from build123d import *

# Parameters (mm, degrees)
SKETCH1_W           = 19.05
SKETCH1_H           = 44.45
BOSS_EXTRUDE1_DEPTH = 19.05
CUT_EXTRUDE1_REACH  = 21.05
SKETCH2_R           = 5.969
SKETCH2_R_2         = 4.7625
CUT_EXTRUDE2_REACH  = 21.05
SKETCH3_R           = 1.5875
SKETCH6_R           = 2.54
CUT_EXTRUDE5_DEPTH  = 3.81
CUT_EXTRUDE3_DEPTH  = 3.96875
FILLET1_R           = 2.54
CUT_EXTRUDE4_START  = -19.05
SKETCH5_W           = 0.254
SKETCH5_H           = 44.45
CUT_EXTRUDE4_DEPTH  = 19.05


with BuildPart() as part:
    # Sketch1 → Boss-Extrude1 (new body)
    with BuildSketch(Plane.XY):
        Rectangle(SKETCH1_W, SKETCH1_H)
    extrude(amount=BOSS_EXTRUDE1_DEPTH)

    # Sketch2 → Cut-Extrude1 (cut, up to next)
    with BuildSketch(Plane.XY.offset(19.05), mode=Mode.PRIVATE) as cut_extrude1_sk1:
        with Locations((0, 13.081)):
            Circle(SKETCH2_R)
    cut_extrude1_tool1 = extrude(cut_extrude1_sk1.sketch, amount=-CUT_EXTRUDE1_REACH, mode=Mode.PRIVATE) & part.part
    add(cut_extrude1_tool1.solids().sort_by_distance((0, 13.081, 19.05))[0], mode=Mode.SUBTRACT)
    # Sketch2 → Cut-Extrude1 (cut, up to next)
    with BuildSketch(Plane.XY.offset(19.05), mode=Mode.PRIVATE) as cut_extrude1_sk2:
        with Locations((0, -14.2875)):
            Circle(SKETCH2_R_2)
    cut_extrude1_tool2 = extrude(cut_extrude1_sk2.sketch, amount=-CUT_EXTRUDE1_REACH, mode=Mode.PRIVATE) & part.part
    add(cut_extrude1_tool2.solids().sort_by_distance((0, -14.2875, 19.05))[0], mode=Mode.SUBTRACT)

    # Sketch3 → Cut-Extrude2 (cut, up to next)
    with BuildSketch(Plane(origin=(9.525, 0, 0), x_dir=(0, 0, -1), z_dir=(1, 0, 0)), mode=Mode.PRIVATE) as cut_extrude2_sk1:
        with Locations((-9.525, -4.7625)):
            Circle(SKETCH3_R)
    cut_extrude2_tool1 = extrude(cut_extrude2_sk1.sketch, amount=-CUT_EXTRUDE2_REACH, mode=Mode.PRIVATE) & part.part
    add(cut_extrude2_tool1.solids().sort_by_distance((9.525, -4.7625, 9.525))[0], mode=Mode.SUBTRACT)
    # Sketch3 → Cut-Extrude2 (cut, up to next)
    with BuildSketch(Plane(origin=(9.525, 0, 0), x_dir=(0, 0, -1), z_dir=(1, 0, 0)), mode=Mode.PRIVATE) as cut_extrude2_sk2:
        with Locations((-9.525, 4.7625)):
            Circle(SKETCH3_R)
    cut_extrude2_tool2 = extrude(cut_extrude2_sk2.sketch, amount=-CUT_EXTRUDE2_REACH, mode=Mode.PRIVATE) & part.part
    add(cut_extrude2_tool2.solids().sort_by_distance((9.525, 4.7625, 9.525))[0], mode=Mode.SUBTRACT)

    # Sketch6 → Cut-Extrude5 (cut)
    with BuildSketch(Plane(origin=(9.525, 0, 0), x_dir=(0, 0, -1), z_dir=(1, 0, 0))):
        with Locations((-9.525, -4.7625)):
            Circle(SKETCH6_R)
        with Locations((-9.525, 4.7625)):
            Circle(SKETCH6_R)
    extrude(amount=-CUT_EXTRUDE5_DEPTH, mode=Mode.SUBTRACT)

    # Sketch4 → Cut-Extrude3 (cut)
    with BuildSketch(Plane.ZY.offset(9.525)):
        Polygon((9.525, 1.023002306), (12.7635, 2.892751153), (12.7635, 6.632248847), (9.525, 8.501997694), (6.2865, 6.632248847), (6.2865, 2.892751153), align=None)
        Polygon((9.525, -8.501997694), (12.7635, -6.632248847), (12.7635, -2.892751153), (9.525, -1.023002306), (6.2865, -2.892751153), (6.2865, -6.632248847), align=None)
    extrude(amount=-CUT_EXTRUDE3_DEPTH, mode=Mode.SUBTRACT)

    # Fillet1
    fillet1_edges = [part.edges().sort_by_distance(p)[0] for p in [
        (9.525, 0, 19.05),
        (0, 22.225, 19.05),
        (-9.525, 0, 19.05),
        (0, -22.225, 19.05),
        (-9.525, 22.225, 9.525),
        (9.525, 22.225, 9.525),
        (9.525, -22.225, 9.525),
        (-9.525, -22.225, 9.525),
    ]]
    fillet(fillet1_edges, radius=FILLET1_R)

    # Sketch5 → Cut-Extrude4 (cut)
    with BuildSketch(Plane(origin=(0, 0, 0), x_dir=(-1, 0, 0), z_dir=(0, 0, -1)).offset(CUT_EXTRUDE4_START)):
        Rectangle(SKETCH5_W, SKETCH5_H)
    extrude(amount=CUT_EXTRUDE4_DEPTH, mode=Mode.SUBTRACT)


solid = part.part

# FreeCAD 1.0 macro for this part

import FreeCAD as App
import Part
import Sketcher

V = App.Vector
Q = App.Units.Quantity


def edges_at(feature, points):
    """Names of the edges that pass closest to the given points."""
    edges = feature.Shape.Edges
    near = lambda p: min(range(len(edges)), key=lambda i: edges[i].distToShape(Part.Vertex(*p))[0])
    return sorted({f"Edge{near(p) + 1}" for p in points})


def add_polygon(sketch, points):
    """Adds a closed chain of lines whose ends are joined by coincident constraints."""
    first, n = sketch.GeometryCount, len(points)
    for a, b in zip(points, points[1:] + points[:1]):
        sketch.addGeometry(Part.LineSegment(App.Vector(*a, 0), App.Vector(*b, 0)), False)
    for i in range(n):
        sketch.addConstraint(Sketcher.Constraint("Coincident", first + i, 2, first + (i + 1) % n, 1))

doc = App.newDocument("Part")
body = doc.addObject("PartDesign::Body", "Body")
body.AllowCompound = True

sketch1 = body.newObject("Sketcher::SketchObject", "Sketch")
sketch1.AttachmentSupport = (doc.getObject("XY_Plane"), [""])
sketch1.MapMode = "FlatFace"
add_polygon(sketch1, [(-9.525, 22.225), (-9.525, -22.225), (9.525, -22.225), (9.525, 22.225)])
sketch1.addConstraint([
    Sketcher.Constraint("Vertical", 0),
    Sketcher.Constraint("Horizontal", 1),
    Sketcher.Constraint("Vertical", 2),
    Sketcher.Constraint("Horizontal", 3),
    Sketcher.Constraint("Symmetric", 0, 2, 2, 2, -1, 1),
    Sketcher.Constraint("DistanceX", 1, 1, 1, 2, Q("0.75 in")),
    Sketcher.Constraint("DistanceY", 0, 2, 0, 1, Q("1.75 in")),
])
pad1 = body.newObject("PartDesign::Pad", "Pad")
pad1.Profile = sketch1
pad1.Length = Q("0.75 in")

sketch2 = body.newObject("Sketcher::SketchObject", "Sketch001")
sketch2.AttachmentSupport = (doc.getObject("XY_Plane"), [""])
sketch2.MapMode = "FlatFace"
sketch2.AttachmentOffset = App.Placement(V(0, 0, 0.75 * 25.4), App.Rotation())
sketch2.addGeometry(Part.Circle(V(0, 13.081, 0), V(0, 0, 1), 5.969), False)
sketch2.addConstraint([
    Sketcher.Constraint("PointOnObject", 0, 3, -2),
    Sketcher.Constraint("Diameter", 0, Q("0.47 in")),
    Sketcher.Constraint("DistanceY", -1, 1, 0, 3, Q("0.515 in")),
])
pocket1 = body.newObject("PartDesign::Pocket", "Pocket")
pocket1.Profile = sketch2
pocket1.Type = "UpToFirst"

sketch3 = body.newObject("Sketcher::SketchObject", "Sketch002")
sketch3.AttachmentSupport = (doc.getObject("XY_Plane"), [""])
sketch3.MapMode = "FlatFace"
sketch3.AttachmentOffset = App.Placement(V(0, 0, 0.75 * 25.4), App.Rotation())
sketch3.addGeometry(Part.Circle(V(0, -14.2875, 0), V(0, 0, 1), 4.7625), False)
sketch3.addConstraint([
    Sketcher.Constraint("PointOnObject", 0, 3, -2),
    Sketcher.Constraint("Diameter", 0, Q("0.375 in")),
    Sketcher.Constraint("DistanceY", 0, 3, -1, 1, Q("0.5625 in")),
])
pocket2 = body.newObject("PartDesign::Pocket", "Pocket001")
pocket2.Profile = sketch3
pocket2.Type = "UpToFirst"

sketch4 = body.newObject("Sketcher::SketchObject", "Sketch003")
sketch4.AttachmentSupport = (doc.getObject("YZ_Plane"), [""])
sketch4.MapMode = "FlatFace"
sketch4.AttachmentOffset = App.Placement(V(0, 0, 0.375 * 25.4), App.Rotation())
sketch4.addGeometry(Part.Circle(V(-4.7625, 9.525, 0), V(0, 0, 1), 1.5875), False)
sketch4.addConstraint([
    Sketcher.Constraint("Diameter", 0, Q("0.125 in")),
    Sketcher.Constraint("DistanceX", 0, 3, -1, 1, Q("0.1875 in")),
    Sketcher.Constraint("DistanceY", -1, 1, 0, 3, Q("0.375 in")),
])
pocket3 = body.newObject("PartDesign::Pocket", "Pocket002")
pocket3.Profile = sketch4
pocket3.Type = "UpToFirst"

sketch5 = body.newObject("Sketcher::SketchObject", "Sketch004")
sketch5.AttachmentSupport = (doc.getObject("YZ_Plane"), [""])
sketch5.MapMode = "FlatFace"
sketch5.AttachmentOffset = App.Placement(V(0, 0, 0.375 * 25.4), App.Rotation())
sketch5.addGeometry(Part.Circle(V(4.7625, 9.525, 0), V(0, 0, 1), 1.5875), False)
sketch5.addConstraint([
    Sketcher.Constraint("Diameter", 0, Q("0.125 in")),
    Sketcher.Constraint("DistanceX", -1, 1, 0, 3, Q("0.1875 in")),
    Sketcher.Constraint("DistanceY", -1, 1, 0, 3, Q("0.375 in")),
])
pocket4 = body.newObject("PartDesign::Pocket", "Pocket003")
pocket4.Profile = sketch5
pocket4.Type = "UpToFirst"

sketch6 = body.newObject("Sketcher::SketchObject", "Sketch005")
sketch6.AttachmentSupport = (doc.getObject("YZ_Plane"), [""])
sketch6.MapMode = "FlatFace"
sketch6.AttachmentOffset = App.Placement(V(0, 0, 0.375 * 25.4), App.Rotation())
sketch6.addGeometry([
    Part.Circle(V(-4.7625, 9.525, 0), V(0, 0, 1), 2.54),
    Part.Circle(V(4.7625, 9.525, 0), V(0, 0, 1), 2.54),
], False)
sketch6.addConstraint([
    Sketcher.Constraint("Equal", 0, 1),
    Sketcher.Constraint("Symmetric", 0, 3, 1, 3, -2),
    Sketcher.Constraint("Diameter", 0, Q("0.2 in")),
    Sketcher.Constraint("DistanceX", 0, 3, -1, 1, Q("0.1875 in")),
    Sketcher.Constraint("DistanceY", -1, 1, 0, 3, Q("0.375 in")),
])
pocket5 = body.newObject("PartDesign::Pocket", "Pocket004")
pocket5.Profile = sketch6
pocket5.Length = Q("0.15 in")

sketch7 = body.newObject("Sketcher::SketchObject", "Sketch006")
sketch7.AttachmentSupport = (doc.getObject("YZ_Plane"), [""])
sketch7.MapMode = "FlatFace"
sketch7.AttachmentOffset = App.Placement(V(0, 0, -0.375 * 25.4), App.Rotation())
add_polygon(sketch7, [(1.023002, 9.525), (2.892751, 12.7635), (6.632249, 12.7635), (8.501998, 9.525), (6.632249, 6.2865), (2.892751, 6.2865)])
add_polygon(sketch7, [(-8.501998, 9.525), (-6.632249, 12.7635), (-2.892751, 12.7635), (-1.023002, 9.525), (-2.892751, 6.2865), (-6.632249, 6.2865)])
sketch7.addConstraint([
    Sketcher.Constraint("Horizontal", 1),
    Sketcher.Constraint("Horizontal", 4),
    Sketcher.Constraint("Horizontal", 7),
    Sketcher.Constraint("Horizontal", 10),
    Sketcher.Constraint("Symmetric", 1, 2, 6, 2, -2),
    Sketcher.Constraint("Symmetric", 5, 2, 8, 2, -2),
    Sketcher.Constraint("Symmetric", 4, 2, 9, 2, -2),
    Sketcher.Constraint("Symmetric", 2, 2, 11, 2, -2),
    Sketcher.Constraint("Parallel", 0, 3),
    Sketcher.Constraint("Parallel", 2, 5),
    Sketcher.Constraint("Parallel", 3, 6),
    Sketcher.Constraint("Parallel", 5, 8),
    Sketcher.Constraint("Parallel", 8, 11),
    Sketcher.Constraint("Horizontal", 2, 2, 5, 2),
    Sketcher.Constraint("Vertical", 1, 2, 3, 2),
    Sketcher.Constraint("Angle", 0, Q("60 deg")),
    Sketcher.Constraint("DistanceY", -1, 1, 2, 2, Q("0.375 in")),
    Sketcher.Constraint("DistanceY", 3, 2, 1, 2, Q("0.255 in")),
    Sketcher.Constraint("DistanceX", 6, 2, 0, 2, Q("0.375 in")),
    Sketcher.Constraint("DistanceX", 1, 1, 1, 2, 3.739498),
])
pocket6 = body.newObject("PartDesign::Pocket", "Pocket005")
pocket6.Profile = sketch7
pocket6.Length = Q("0.15625 in")
pocket6.Reversed = True
doc.recompute()

fillet = body.newObject("PartDesign::Fillet", "Fillet")
fillet.Base = (pocket6, edges_at(pocket6, [
    (9.525, 0, 19.05),
    (0, 22.225, 19.05),
    (-9.525, 0, 19.05),
    (0, -22.225, 19.05),
    (-9.525, 22.225, 9.525),
    (9.525, 22.225, 9.525),
    (9.525, -22.225, 9.525),
    (-9.525, -22.225, 9.525),
]))
fillet.Radius = Q("0.1 in")

sketch8 = body.newObject("Sketcher::SketchObject", "Sketch007")
sketch8.AttachmentSupport = (doc.getObject("XY_Plane"), [""])
sketch8.MapMode = "FlatFace"
sketch8.AttachmentOffset = App.Placement(V(0, 0, 0.75 * 25.4), App.Rotation())
add_polygon(sketch8, [(0.127, 22.225), (0.127, -22.225), (-0.127, -22.225), (-0.127, 22.225)])
sketch8.addConstraint([
    Sketcher.Constraint("Vertical", 0),
    Sketcher.Constraint("Horizontal", 1),
    Sketcher.Constraint("Vertical", 2),
    Sketcher.Constraint("Horizontal", 3),
    Sketcher.Constraint("Symmetric", 0, 2, 2, 2, -1, 1),
    Sketcher.Constraint("DistanceX", 1, 2, 1, 1, Q("0.01 in")),
    Sketcher.Constraint("DistanceY", 0, 2, 0, 1, Q("1.75 in")),
])
pocket7 = body.newObject("PartDesign::Pocket", "Pocket006")
pocket7.Profile = sketch8
pocket7.Length = Q("0.75 in")

doc.recompute()
